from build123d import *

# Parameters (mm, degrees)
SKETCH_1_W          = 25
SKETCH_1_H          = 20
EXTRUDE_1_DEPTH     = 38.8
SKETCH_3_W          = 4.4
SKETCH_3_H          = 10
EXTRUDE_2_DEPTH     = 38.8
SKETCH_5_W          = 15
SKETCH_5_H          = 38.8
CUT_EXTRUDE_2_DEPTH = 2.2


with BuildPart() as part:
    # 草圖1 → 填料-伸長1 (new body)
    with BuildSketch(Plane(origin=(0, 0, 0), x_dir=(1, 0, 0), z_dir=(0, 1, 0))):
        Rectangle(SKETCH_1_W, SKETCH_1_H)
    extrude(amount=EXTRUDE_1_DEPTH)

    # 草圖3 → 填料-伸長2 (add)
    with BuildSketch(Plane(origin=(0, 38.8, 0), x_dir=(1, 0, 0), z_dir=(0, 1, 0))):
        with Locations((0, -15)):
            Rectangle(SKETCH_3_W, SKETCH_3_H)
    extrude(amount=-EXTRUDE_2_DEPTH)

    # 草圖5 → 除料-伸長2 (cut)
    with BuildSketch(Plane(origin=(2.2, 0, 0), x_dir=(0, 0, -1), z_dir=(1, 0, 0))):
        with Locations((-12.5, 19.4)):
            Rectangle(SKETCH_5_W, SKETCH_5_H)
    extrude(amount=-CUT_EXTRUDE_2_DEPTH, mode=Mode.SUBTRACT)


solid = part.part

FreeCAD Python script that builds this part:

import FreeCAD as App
import Part
import Sketcher
from FreeCAD import Vector

doc = App.newDocument("Part")
body = doc.addObject("PartDesign::Body", "Body")

# Sketch on XZ plane
sketch1 = body.newObject("Sketcher::SketchObject", "Sketch")
sketch1.AttachmentSupport = (doc.getObject("XZ_Plane"), [""])
sketch1.MapMode = "FlatFace"
sketch1.addGeometry(Part.LineSegment(Vector(-12.5, -10, 0), Vector(-12.5, 10, 0)), False)
sketch1.addGeometry(Part.LineSegment(Vector(-12.5, 10, 0), Vector(12.5, 10, 0)), False)
sketch1.addGeometry(Part.LineSegment(Vector(12.5, 10, 0), Vector(12.5, -10, 0)), False)
sketch1.addGeometry(Part.LineSegment(Vector(12.5, -10, 0), Vector(-12.5, -10, 0)), False)
sketch1.addConstraint(Sketcher.Constraint("Coincident", 0, 2, 1, 1))
sketch1.addConstraint(Sketcher.Constraint("Coincident", 1, 2, 2, 1))
sketch1.addConstraint(Sketcher.Constraint("Coincident", 2, 2, 3, 1))
sketch1.addConstraint(Sketcher.Constraint("Coincident", 3, 2, 0, 1))
sketch1.addConstraint(Sketcher.Constraint("Vertical", 0))
sketch1.addConstraint(Sketcher.Constraint("Horizontal", 1))
sketch1.addConstraint(Sketcher.Constraint("Vertical", 2))
sketch1.addConstraint(Sketcher.Constraint("Horizontal", 3))
sketch1.addConstraint(Sketcher.Constraint("Symmetric", 0, 2, 2, 2, -1, 1))
sketch1.addConstraint(Sketcher.Constraint("DistanceX", 1, 1, 1, 2, 25.0))
sketch1.addConstraint(Sketcher.Constraint("DistanceY", 0, 1, 0, 2, 20.0))
pad1 = body.newObject("PartDesign::Pad", "Pad")
pad1.Profile = sketch1
pad1.Length = 38.8
pad1.Reversed = True

# Sketch on XZ plane
sketch2 = body.newObject("Sketcher::SketchObject", "Sketch001")
sketch2.AttachmentSupport = (doc.getObject("XZ_Plane"), [""])
sketch2.MapMode = "FlatFace"
sketch2.AttachmentOffset = App.Placement(Vector(0, 0, -38.8), App.Rotation())
sketch2.addGeometry(Part.LineSegment(Vector(-2.2, 10, 0), Vector(-2.2, 20, 0)), False)
sketch2.addGeometry(Part.LineSegment(Vector(-2.2, 20, 0), Vector(2.2, 20, 0)), False)
sketch2.addGeometry(Part.LineSegment(Vector(2.2, 20, 0), Vector(2.2, 10, 0)), False)
sketch2.addGeometry(Part.LineSegment(Vector(2.2, 10, 0), Vector(-2.2, 10, 0)), False)
sketch2.addConstraint(Sketcher.Constraint("Coincident", 0, 2, 1, 1))
sketch2.addConstraint(Sketcher.Constraint("Coincident", 1, 2, 2, 1))
sketch2.addConstraint(Sketcher.Constraint("Coincident", 2, 2, 3, 1))
sketch2.addConstraint(Sketcher.Constraint("Coincident", 3, 2, 0, 1))
sketch2.addConstraint(Sketcher.Constraint("Vertical", 0))
sketch2.addConstraint(Sketcher.Constraint("Horizontal", 1))
sketch2.addConstraint(Sketcher.Constraint("Vertical", 2))
sketch2.addConstraint(Sketcher.Constraint("Horizontal", 3))
sketch2.addConstraint(Sketcher.Constraint("DistanceY", 0, 1, 0, 2, 10.0))
sketch2.addConstraint(Sketcher.Constraint("DistanceX", 1, 1, 1, 2, 4.4))
sketch2.addConstraint(Sketcher.Constraint("DistanceY", -1, 1, 0, 2, 20.0))
sketch2.addConstraint(Sketcher.Constraint("DistanceX", 0, 2, -1, 1, 2.2))
pad2 = body.newObject("PartDesign::Pad", "Pad001")
pad2.Profile = sketch2
pad2.Length = 38.8

# Sketch on YZ plane
sketch3 = body.newObject("Sketcher::SketchObject", "Sketch002")
sketch3.AttachmentSupport = (doc.getObject("YZ_Plane"), [""])
sketch3.MapMode = "FlatFace"
sketch3.AttachmentOffset = App.Placement(Vector(0, 0, 2.2), App.Rotation())
sketch3.addGeometry(Part.LineSegment(Vector(38.8, 20, 0), Vector(0, 20, 0)), False)
sketch3.addGeometry(Part.LineSegment(Vector(0, 20, 0), Vector(0, 5, 0)), False)
sketch3.addGeometry(Part.LineSegment(Vector(0, 5, 0), Vector(38.8, 5, 0)), False)
sketch3.addGeometry(Part.LineSegment(Vector(38.8, 5, 0), Vector(38.8, 20, 0)), False)
sketch3.addConstraint(Sketcher.Constraint("Coincident", 0, 2, 1, 1))
sketch3.addConstraint(Sketcher.Constraint("Coincident", 1, 2, 2, 1))
sketch3.addConstraint(Sketcher.Constraint("Coincident", 2, 2, 3, 1))
sketch3.addConstraint(Sketcher.Constraint("Coincident", 3, 2, 0, 1))
sketch3.addConstraint(Sketcher.Constraint("Horizontal", 0))
sketch3.addConstraint(Sketcher.Constraint("Vertical", 1))
sketch3.addConstraint(Sketcher.Constraint("Horizontal", 2))
sketch3.addConstraint(Sketcher.Constraint("Vertical", 3))
sketch3.addConstraint(Sketcher.Constraint("PointOnObject", 0, 2, -2))
sketch3.addConstraint(Sketcher.Constraint("DistanceY", 1, 2, 1, 1, 15.0))
sketch3.addConstraint(Sketcher.Constraint("DistanceX", 0, 2, 0, 1, 38.8))
sketch3.addConstraint(Sketcher.Constraint("DistanceY", -1, 1, 0, 2, 20.0))
pocket1 = body.newObject("PartDesign::Pocket", "Pocket")
pocket1.Profile = sketch3
pocket1.Length = 2.2

doc.recompute()
